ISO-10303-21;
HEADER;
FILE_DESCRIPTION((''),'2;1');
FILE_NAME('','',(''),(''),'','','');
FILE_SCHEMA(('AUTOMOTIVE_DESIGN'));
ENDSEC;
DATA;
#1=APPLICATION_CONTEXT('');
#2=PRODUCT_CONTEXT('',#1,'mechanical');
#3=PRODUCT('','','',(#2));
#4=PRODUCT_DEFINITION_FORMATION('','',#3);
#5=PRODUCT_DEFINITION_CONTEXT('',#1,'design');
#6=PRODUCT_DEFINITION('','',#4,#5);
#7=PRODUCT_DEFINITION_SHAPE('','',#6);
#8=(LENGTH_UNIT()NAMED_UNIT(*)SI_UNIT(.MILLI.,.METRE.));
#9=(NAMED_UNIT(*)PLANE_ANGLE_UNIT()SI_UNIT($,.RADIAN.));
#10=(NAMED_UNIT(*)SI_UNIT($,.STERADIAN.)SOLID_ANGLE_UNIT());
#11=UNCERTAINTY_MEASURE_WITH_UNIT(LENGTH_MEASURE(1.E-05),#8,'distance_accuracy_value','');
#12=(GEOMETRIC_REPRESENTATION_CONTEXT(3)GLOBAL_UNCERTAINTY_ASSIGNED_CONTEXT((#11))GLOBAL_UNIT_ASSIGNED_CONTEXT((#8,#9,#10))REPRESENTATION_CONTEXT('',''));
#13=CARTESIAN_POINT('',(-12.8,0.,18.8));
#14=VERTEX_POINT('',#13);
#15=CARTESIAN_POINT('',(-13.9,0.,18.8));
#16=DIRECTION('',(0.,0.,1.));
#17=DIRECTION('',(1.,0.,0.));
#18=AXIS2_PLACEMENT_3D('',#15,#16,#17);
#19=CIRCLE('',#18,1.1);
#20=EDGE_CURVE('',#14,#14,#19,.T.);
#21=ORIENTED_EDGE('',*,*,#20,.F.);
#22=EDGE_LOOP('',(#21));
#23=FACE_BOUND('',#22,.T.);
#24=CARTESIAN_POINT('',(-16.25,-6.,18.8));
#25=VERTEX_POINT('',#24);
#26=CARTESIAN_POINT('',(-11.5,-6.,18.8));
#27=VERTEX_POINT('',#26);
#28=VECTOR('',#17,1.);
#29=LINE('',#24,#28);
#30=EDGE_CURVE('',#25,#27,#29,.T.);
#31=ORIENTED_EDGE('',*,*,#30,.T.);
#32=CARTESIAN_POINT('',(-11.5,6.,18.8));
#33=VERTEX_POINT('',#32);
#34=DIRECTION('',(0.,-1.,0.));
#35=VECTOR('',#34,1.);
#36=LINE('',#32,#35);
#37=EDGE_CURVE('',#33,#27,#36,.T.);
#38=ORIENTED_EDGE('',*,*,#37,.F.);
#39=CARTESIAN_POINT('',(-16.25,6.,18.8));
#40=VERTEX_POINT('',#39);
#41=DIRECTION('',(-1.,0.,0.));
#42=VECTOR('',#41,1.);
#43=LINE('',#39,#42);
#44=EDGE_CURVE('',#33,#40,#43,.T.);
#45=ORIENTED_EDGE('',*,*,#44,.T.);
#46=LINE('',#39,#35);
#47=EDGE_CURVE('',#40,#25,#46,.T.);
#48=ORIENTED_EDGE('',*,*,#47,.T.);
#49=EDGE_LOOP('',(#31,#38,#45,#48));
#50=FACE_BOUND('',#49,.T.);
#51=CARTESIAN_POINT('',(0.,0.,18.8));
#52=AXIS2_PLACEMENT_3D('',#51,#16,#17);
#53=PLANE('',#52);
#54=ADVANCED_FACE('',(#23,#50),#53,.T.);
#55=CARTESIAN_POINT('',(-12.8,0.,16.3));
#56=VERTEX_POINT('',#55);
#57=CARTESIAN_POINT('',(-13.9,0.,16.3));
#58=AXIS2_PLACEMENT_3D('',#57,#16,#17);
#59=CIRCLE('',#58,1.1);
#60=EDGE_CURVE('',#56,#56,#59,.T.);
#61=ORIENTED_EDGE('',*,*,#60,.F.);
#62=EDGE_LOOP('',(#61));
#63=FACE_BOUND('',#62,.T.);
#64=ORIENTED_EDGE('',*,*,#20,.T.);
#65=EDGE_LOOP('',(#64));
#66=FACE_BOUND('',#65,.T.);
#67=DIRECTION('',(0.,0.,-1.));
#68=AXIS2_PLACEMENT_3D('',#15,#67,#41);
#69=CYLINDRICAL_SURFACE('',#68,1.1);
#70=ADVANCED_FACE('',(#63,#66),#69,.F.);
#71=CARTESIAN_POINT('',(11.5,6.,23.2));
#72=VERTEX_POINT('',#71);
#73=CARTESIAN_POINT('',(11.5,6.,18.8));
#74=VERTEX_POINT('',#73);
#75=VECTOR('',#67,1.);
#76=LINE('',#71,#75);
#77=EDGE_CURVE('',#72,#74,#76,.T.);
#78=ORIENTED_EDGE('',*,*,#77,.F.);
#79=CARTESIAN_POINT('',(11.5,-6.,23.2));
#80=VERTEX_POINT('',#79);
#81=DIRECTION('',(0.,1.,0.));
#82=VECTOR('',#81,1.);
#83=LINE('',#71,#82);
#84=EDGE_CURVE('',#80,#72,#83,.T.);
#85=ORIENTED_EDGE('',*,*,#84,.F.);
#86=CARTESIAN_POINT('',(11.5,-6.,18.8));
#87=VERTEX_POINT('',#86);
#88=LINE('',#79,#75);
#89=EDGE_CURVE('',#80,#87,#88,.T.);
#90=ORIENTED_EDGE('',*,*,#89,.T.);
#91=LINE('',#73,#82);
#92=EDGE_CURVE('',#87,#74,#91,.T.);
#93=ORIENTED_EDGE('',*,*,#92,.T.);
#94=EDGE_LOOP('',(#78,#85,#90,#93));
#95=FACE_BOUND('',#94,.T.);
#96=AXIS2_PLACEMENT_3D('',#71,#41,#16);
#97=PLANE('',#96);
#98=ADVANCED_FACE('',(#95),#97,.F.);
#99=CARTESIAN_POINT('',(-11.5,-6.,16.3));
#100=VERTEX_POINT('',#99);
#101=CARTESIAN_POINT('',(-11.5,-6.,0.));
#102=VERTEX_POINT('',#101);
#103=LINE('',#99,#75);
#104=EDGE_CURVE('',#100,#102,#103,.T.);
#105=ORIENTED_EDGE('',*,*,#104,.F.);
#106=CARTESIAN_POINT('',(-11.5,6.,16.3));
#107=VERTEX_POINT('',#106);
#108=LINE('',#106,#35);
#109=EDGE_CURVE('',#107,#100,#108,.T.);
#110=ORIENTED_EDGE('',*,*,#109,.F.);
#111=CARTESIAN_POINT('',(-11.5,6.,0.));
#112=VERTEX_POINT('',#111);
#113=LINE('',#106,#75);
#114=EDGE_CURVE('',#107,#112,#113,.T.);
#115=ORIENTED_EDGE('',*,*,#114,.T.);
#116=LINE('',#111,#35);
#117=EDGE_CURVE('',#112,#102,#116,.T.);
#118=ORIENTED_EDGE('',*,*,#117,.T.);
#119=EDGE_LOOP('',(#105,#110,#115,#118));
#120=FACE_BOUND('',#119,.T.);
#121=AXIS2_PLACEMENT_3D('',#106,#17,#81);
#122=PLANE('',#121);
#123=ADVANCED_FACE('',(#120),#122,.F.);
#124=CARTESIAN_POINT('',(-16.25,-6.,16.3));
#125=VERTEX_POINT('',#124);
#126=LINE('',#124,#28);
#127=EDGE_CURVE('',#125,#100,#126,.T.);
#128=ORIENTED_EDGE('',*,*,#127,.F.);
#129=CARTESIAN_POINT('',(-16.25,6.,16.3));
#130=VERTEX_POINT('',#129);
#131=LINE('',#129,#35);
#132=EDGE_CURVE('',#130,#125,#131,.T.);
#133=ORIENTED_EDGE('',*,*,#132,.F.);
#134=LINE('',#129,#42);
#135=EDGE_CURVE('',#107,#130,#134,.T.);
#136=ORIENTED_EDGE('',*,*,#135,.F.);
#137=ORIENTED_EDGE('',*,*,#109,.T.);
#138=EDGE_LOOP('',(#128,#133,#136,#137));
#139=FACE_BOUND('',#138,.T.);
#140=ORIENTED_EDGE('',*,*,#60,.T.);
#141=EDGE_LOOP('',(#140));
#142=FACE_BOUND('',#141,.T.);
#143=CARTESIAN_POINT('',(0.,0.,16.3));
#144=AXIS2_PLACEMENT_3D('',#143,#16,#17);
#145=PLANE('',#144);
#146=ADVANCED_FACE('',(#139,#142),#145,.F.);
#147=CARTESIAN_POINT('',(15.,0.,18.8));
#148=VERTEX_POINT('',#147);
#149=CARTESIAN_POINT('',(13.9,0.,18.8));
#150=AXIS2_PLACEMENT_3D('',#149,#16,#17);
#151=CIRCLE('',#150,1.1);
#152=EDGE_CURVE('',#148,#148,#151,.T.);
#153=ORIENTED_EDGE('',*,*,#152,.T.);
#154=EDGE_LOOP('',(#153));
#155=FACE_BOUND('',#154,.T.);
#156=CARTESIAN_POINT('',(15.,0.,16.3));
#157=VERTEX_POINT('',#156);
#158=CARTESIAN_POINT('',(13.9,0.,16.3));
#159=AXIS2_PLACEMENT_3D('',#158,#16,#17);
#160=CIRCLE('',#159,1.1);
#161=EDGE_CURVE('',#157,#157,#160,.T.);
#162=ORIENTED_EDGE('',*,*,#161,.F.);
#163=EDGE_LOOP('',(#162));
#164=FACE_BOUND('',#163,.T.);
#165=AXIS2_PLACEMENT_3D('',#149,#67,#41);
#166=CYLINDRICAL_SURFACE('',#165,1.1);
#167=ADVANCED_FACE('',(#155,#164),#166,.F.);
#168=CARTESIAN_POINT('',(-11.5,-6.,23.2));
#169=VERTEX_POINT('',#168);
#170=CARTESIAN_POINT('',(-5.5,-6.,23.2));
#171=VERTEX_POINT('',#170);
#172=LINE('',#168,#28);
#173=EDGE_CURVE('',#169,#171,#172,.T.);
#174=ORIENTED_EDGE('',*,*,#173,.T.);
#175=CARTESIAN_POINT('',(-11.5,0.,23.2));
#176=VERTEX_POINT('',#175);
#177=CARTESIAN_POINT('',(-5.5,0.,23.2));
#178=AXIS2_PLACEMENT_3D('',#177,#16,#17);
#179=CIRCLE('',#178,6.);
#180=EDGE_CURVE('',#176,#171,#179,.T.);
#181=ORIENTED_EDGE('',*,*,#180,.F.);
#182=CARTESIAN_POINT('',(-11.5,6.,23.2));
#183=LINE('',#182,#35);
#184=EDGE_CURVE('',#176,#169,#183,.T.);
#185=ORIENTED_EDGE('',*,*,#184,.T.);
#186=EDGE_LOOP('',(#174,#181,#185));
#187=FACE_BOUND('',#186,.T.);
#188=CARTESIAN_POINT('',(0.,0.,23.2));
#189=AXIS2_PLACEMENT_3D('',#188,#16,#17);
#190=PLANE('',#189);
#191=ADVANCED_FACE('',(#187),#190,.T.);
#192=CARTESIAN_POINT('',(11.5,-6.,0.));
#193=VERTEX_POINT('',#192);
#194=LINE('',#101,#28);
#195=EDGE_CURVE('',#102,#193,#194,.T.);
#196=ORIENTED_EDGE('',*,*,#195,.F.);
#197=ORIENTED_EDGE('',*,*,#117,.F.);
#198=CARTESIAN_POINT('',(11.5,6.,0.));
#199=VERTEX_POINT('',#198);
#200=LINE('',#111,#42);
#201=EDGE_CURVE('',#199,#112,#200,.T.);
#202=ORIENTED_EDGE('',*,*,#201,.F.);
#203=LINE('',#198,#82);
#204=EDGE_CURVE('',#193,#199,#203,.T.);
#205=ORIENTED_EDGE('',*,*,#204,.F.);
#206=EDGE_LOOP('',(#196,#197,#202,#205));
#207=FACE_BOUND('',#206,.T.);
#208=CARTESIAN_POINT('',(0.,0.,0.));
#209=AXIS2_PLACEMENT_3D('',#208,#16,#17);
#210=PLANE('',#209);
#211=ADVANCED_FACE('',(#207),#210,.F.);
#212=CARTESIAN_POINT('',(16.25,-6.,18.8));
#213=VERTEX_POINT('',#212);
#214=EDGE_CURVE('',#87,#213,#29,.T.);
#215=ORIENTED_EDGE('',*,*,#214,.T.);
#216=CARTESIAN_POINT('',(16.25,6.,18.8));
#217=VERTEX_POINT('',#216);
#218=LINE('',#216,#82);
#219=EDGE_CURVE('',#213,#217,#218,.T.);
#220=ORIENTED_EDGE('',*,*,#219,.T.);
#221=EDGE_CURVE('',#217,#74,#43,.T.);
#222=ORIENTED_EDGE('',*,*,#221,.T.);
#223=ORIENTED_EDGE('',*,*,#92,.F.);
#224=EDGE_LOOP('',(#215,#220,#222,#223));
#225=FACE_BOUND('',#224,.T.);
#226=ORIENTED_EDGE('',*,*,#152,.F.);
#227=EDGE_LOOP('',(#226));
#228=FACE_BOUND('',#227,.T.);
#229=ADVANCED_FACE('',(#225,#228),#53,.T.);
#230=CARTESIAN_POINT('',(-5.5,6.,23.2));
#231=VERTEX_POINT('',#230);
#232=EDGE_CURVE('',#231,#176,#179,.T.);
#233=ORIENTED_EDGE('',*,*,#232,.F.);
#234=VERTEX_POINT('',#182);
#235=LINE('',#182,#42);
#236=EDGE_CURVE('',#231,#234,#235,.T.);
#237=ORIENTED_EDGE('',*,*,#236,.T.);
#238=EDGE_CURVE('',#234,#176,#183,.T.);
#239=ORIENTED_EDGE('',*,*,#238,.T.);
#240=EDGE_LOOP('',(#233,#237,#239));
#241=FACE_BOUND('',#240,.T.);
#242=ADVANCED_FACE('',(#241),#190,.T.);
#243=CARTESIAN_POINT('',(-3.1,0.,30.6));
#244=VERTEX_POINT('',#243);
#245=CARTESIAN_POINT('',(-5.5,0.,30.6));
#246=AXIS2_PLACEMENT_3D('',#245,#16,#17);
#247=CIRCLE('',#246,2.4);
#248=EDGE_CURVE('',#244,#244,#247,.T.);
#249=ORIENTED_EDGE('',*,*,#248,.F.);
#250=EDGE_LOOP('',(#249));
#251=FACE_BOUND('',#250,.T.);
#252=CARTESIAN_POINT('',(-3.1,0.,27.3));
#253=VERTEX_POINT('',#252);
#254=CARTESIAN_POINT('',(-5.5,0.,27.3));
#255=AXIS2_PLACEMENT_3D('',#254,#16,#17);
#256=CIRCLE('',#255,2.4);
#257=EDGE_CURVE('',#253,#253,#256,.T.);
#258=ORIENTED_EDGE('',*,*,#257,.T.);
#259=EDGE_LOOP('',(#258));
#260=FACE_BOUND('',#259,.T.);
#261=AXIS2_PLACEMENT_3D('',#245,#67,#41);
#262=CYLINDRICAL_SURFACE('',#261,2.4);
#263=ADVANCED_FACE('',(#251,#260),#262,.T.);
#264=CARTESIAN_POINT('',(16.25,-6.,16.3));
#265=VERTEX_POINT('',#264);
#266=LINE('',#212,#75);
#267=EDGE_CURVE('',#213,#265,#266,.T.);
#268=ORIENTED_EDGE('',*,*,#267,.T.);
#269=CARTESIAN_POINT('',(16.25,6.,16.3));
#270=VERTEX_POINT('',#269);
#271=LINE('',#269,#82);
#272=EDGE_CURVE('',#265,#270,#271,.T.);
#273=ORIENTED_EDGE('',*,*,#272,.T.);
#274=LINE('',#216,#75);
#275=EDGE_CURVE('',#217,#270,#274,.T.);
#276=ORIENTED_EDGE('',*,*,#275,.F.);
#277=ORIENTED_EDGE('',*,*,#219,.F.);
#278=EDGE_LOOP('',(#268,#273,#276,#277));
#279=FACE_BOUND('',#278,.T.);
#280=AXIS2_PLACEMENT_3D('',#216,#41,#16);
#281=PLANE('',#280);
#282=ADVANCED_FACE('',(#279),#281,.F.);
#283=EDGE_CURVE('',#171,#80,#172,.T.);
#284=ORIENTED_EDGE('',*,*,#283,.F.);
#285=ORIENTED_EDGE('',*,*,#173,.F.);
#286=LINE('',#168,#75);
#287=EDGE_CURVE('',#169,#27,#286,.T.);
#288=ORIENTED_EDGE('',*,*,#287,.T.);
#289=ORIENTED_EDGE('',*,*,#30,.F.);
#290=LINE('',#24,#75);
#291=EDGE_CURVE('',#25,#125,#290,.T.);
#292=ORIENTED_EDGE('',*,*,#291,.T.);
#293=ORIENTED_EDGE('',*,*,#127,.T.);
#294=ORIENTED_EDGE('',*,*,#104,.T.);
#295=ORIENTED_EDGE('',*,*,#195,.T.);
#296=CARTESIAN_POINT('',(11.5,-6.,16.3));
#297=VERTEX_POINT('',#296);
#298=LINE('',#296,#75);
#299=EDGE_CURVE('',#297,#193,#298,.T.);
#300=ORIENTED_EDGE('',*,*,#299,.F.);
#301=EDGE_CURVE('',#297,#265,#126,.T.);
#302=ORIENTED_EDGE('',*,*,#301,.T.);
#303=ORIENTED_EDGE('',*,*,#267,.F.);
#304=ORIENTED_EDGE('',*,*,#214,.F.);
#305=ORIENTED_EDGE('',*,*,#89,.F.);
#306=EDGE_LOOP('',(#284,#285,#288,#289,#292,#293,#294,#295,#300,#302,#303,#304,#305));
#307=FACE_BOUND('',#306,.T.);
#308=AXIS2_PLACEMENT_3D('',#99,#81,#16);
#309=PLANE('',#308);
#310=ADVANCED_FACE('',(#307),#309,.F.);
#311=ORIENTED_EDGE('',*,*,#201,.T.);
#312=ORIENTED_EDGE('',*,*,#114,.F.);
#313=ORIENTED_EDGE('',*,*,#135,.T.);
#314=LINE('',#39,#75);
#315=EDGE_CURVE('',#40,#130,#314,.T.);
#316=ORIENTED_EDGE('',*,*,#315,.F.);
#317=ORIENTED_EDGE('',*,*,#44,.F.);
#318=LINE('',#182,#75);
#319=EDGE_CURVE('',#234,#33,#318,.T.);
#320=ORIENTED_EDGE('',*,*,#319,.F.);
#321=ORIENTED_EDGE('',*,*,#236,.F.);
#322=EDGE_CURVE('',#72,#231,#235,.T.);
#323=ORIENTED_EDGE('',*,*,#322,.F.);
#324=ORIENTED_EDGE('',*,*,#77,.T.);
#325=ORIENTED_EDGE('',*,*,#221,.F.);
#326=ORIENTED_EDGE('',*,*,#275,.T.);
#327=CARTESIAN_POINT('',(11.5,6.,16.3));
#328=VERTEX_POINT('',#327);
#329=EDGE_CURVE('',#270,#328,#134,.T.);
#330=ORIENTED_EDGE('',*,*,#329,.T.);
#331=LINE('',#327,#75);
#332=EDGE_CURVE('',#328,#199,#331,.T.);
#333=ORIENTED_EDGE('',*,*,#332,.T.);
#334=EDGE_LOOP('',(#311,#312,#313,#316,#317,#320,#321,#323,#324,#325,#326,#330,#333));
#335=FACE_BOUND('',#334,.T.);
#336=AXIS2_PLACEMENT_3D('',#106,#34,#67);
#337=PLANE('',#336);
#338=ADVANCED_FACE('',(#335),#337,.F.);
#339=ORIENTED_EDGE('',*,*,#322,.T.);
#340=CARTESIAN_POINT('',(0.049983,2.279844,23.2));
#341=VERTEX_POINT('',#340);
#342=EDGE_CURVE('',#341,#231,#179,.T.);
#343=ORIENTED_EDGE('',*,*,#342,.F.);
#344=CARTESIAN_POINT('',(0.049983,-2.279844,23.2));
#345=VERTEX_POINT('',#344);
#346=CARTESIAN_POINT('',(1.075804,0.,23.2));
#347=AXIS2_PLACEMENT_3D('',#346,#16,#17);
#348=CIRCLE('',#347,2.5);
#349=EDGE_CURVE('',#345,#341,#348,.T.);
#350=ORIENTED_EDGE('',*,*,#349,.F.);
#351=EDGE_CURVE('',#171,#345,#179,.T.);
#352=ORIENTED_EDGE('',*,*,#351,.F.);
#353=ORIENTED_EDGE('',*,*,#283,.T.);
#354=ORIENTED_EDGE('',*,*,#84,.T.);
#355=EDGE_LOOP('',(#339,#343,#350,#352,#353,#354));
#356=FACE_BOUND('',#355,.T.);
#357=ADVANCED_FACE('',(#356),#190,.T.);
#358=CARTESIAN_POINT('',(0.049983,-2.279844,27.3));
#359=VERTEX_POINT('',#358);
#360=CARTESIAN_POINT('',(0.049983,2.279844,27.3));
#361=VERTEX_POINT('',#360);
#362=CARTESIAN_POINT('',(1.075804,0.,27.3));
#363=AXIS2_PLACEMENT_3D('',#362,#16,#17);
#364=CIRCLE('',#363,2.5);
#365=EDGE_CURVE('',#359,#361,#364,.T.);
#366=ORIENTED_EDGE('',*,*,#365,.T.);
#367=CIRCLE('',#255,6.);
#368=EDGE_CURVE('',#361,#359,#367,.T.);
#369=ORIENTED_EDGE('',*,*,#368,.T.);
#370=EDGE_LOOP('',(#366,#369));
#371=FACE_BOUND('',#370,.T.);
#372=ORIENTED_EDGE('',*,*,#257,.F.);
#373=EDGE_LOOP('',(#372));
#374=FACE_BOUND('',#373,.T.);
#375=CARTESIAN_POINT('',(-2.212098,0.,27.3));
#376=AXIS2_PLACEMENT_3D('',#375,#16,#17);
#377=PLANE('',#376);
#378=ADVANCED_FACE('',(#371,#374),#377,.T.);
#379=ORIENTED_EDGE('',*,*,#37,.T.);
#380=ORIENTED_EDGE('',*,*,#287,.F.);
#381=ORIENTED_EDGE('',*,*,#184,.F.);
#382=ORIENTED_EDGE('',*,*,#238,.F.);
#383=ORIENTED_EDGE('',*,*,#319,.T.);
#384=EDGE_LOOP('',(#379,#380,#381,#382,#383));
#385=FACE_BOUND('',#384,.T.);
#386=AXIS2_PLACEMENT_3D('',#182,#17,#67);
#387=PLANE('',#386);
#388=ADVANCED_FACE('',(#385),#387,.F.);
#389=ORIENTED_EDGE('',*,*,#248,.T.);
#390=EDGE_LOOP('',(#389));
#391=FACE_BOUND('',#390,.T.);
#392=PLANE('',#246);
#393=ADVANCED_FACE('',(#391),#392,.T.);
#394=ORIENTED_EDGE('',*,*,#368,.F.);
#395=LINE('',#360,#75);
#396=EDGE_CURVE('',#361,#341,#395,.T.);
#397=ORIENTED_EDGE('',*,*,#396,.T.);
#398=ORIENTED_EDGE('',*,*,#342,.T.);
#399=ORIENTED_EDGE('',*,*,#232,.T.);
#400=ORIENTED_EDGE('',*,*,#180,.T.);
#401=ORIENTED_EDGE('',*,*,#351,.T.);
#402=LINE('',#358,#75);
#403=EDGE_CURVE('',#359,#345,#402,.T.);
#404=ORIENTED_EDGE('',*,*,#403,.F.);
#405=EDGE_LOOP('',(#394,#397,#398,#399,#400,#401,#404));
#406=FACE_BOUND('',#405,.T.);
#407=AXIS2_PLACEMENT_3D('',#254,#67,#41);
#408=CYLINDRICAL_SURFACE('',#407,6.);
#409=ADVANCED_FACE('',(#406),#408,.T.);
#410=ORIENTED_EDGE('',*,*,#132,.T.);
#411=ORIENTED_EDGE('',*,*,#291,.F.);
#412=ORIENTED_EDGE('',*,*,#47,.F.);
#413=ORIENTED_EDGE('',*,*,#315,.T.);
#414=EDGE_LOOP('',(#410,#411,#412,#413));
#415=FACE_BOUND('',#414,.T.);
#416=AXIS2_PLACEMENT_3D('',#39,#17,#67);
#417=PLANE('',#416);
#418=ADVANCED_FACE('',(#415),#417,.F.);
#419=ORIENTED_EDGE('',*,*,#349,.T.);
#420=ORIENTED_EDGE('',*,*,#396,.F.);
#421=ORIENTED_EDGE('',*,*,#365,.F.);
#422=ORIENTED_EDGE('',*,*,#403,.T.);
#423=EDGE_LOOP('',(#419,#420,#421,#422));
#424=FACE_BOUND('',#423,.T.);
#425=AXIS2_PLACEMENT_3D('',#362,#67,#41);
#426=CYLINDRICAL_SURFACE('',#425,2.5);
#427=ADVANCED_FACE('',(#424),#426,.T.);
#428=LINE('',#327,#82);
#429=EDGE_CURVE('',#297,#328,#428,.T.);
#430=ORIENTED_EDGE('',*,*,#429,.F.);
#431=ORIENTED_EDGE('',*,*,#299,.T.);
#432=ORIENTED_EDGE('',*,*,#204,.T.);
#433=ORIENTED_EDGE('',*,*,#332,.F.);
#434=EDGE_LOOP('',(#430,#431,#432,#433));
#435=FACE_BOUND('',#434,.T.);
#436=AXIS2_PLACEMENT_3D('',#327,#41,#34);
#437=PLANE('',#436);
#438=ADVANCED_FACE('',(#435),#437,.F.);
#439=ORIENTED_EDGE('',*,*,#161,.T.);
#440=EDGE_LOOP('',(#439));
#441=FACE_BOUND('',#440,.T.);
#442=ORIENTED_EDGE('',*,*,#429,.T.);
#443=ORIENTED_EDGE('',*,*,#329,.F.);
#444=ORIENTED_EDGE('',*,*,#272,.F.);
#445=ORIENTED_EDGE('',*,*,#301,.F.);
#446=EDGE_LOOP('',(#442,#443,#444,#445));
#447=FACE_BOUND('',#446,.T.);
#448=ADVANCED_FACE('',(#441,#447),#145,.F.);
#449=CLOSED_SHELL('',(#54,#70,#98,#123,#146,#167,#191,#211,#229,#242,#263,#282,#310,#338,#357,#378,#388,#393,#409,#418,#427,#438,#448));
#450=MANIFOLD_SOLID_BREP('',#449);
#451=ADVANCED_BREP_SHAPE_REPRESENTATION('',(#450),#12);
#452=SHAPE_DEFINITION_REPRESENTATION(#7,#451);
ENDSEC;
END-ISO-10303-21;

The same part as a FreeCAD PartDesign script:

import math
import FreeCAD as App
import Part
import Sketcher


def add_polygon(sketch, points):
    """Adds a closed chain of lines whose ends are joined by coincident constraints."""
    first, n = sketch.GeometryCount, len(points)
    for a, b in zip(points, points[1:] + points[:1]):
        sketch.addGeometry(Part.LineSegment(App.Vector(*a, 0), App.Vector(*b, 0)), False)
    for i in range(n):
        sketch.addConstraint(Sketcher.Constraint("Coincident", first + i, 2, first + (i + 1) % n, 1))

doc = App.newDocument("Part")
body = doc.addObject("PartDesign::Body", "Body")

# Sketch on XY plane
sketch1 = body.newObject("Sketcher::SketchObject", "Sketch")
sketch1.AttachmentSupport = (doc.getObject("XY_Plane"), [""])
sketch1.MapMode = "FlatFace"
add_polygon(sketch1, [(-12, 6), (-12, -6), (12, -6), (12, 6)])  # lines 0-3
sketch1.addConstraint(Sketcher.Constraint("Vertical", 0))
sketch1.addConstraint(Sketcher.Constraint("Horizontal", 1))
sketch1.addConstraint(Sketcher.Constraint("Vertical", 2))
sketch1.addConstraint(Sketcher.Constraint("Horizontal", 3))
sketch1.addConstraint(Sketcher.Constraint("Symmetric", 0, 2, 2, 2, -1, 1))
sketch1.addConstraint(Sketcher.Constraint("DistanceX", 1, 1, 1, 2, 23.0))
sketch1.addConstraint(Sketcher.Constraint("DistanceY", 0, 2, 0, 1, 12.0))
pad1 = body.newObject("PartDesign::Pad", "Pad")
pad1.Profile = sketch1
pad1.Length = 16.3

# Sketch on XY plane
sketch2 = body.newObject("Sketcher::SketchObject", "Sketch001")
sketch2.AttachmentSupport = (doc.getObject("XY_Plane"), [""])
sketch2.MapMode = "FlatFace"
sketch2.AttachmentOffset = App.Placement(App.Vector(0, 0, 16.3), App.Rotation())
add_polygon(sketch2, [(-16.2, 6), (-16.2, -6), (16.2, -6), (16.2, 6)])  # lines 0-3
sketch2.addGeometry(Part.Circle(App.Vector(-13.9, 0, 0), App.Vector(0, 0, 1), 1.1), False)  # 4
sketch2.addGeometry(Part.Circle(App.Vector(13.9, 0, 0), App.Vector(0, 0, 1), 1.1), False)  # 5
sketch2.addConstraint(Sketcher.Constraint("Vertical", 0))
sketch2.addConstraint(Sketcher.Constraint("Horizontal", 1))
sketch2.addConstraint(Sketcher.Constraint("Vertical", 2))
sketch2.addConstraint(Sketcher.Constraint("Horizontal", 3))
sketch2.addConstraint(Sketcher.Constraint("Equal", 4, 5))
sketch2.addConstraint(Sketcher.Constraint("Symmetric", 4, 3, 5, 3, -1, 1))
sketch2.addConstraint(Sketcher.Constraint("Symmetric", 0, 2, 2, 2, -1, 1))
sketch2.addConstraint(Sketcher.Constraint("PointOnObject", 4, 3, -1))
sketch2.addConstraint(Sketcher.Constraint("Diameter", 4, 2.2))
sketch2.addConstraint(Sketcher.Constraint("DistanceY", 0, 2, 0, 1, 12.0))
sketch2.addConstraint(Sketcher.Constraint("DistanceX", 1, 1, 1, 2, 32.5))
sketch2.addConstraint(Sketcher.Constraint("DistanceX", 4, 3, -1, 1, 13.9))
pad2 = body.newObject("PartDesign::Pad", "Pad001")
pad2.Profile = sketch2
pad2.Length = 2.5

# Sketch on XY plane
sketch3 = body.newObject("Sketcher::SketchObject", "Sketch002")
sketch3.AttachmentSupport = (doc.getObject("XY_Plane"), [""])
sketch3.MapMode = "FlatFace"
sketch3.AttachmentOffset = App.Placement(App.Vector(0, 0, 18.8), App.Rotation())
add_polygon(sketch3, [(-12, 6), (-12, -6), (12, -6), (12, 6)])  # lines 0-3
sketch3.addConstraint(Sketcher.Constraint("Vertical", 0))
sketch3.addConstraint(Sketcher.Constraint("Horizontal", 1))
sketch3.addConstraint(Sketcher.Constraint("Vertical", 2))
sketch3.addConstraint(Sketcher.Constraint("Horizontal", 3))
sketch3.addConstraint(Sketcher.Constraint("Symmetric", 0, 2, 2, 2, -1, 1))
sketch3.addConstraint(Sketcher.Constraint("DistanceX", 1, 1, 1, 2, 23.0))
sketch3.addConstraint(Sketcher.Constraint("DistanceY", 0, 2, 0, 1, 12.0))
pad3 = body.newObject("PartDesign::Pad", "Pad002")
pad3.Profile = sketch3
pad3.Length = 4.4

# Sketch on XY plane
sketch4 = body.newObject("Sketcher::SketchObject", "Sketch003")
sketch4.AttachmentSupport = (doc.getObject("XY_Plane"), [""])
sketch4.MapMode = "FlatFace"
sketch4.AttachmentOffset = App.Placement(App.Vector(0, 0, 23.2), App.Rotation())
sketch4.addGeometry(Part.ArcOfCircle(Part.Circle(App.Vector(-5.5, 0, 0), App.Vector(0, 0, 1), 6), math.radians(22), math.radians(338)), False)
sketch4.addGeometry(Part.ArcOfCircle(Part.Circle(App.Vector(1.1, 0, 0), App.Vector(0, 0, 1), 2.5), math.radians(-114), math.radians(114)), False)
sketch4.addConstraint(Sketcher.Constraint("Coincident", 0, 1, 1, 2))
sketch4.addConstraint(Sketcher.Constraint("Coincident", 1, 1, 0, 2))
sketch4.addConstraint(Sketcher.Constraint("Symmetric", 0, 1, 1, 1, -1))
sketch4.addConstraint(Sketcher.Constraint("Radius", 0, 6.0))
sketch4.addConstraint(Sketcher.Constraint("Radius", 1, 2.5))
sketch4.addConstraint(Sketcher.Constraint("DistanceX", 0, 3, -1, 1, 5.5))
sketch4.addConstraint(Sketcher.Constraint("DistanceX", 0, 1, 1, 3, 1.025822))
pad4 = body.newObject("PartDesign::Pad", "Pad003")
pad4.Profile = sketch4
pad4.Length = 4.1

# Sketch on XY plane
sketch5 = body.newObject("Sketcher::SketchObject", "Sketch004")
sketch5.AttachmentSupport = (doc.getObject("XY_Plane"), [""])
sketch5.MapMode = "FlatFace"
sketch5.AttachmentOffset = App.Placement(App.Vector(0, 0, 27.3), App.Rotation())
sketch5.addGeometry(Part.Circle(App.Vector(-5.5, 0, 0), App.Vector(0, 0, 1), 2.4), False)
sketch5.addConstraint(Sketcher.Constraint("PointOnObject", 0, 3, -1))
sketch5.addConstraint(Sketcher.Constraint("Diameter", 0, 4.8))
sketch5.addConstraint(Sketcher.Constraint("DistanceX", 0, 3, -1, 1, 5.5))
pad5 = body.newObject("PartDesign::Pad", "Pad004")
pad5.Profile = sketch5
pad5.Length = 3.3

doc.recompute()
